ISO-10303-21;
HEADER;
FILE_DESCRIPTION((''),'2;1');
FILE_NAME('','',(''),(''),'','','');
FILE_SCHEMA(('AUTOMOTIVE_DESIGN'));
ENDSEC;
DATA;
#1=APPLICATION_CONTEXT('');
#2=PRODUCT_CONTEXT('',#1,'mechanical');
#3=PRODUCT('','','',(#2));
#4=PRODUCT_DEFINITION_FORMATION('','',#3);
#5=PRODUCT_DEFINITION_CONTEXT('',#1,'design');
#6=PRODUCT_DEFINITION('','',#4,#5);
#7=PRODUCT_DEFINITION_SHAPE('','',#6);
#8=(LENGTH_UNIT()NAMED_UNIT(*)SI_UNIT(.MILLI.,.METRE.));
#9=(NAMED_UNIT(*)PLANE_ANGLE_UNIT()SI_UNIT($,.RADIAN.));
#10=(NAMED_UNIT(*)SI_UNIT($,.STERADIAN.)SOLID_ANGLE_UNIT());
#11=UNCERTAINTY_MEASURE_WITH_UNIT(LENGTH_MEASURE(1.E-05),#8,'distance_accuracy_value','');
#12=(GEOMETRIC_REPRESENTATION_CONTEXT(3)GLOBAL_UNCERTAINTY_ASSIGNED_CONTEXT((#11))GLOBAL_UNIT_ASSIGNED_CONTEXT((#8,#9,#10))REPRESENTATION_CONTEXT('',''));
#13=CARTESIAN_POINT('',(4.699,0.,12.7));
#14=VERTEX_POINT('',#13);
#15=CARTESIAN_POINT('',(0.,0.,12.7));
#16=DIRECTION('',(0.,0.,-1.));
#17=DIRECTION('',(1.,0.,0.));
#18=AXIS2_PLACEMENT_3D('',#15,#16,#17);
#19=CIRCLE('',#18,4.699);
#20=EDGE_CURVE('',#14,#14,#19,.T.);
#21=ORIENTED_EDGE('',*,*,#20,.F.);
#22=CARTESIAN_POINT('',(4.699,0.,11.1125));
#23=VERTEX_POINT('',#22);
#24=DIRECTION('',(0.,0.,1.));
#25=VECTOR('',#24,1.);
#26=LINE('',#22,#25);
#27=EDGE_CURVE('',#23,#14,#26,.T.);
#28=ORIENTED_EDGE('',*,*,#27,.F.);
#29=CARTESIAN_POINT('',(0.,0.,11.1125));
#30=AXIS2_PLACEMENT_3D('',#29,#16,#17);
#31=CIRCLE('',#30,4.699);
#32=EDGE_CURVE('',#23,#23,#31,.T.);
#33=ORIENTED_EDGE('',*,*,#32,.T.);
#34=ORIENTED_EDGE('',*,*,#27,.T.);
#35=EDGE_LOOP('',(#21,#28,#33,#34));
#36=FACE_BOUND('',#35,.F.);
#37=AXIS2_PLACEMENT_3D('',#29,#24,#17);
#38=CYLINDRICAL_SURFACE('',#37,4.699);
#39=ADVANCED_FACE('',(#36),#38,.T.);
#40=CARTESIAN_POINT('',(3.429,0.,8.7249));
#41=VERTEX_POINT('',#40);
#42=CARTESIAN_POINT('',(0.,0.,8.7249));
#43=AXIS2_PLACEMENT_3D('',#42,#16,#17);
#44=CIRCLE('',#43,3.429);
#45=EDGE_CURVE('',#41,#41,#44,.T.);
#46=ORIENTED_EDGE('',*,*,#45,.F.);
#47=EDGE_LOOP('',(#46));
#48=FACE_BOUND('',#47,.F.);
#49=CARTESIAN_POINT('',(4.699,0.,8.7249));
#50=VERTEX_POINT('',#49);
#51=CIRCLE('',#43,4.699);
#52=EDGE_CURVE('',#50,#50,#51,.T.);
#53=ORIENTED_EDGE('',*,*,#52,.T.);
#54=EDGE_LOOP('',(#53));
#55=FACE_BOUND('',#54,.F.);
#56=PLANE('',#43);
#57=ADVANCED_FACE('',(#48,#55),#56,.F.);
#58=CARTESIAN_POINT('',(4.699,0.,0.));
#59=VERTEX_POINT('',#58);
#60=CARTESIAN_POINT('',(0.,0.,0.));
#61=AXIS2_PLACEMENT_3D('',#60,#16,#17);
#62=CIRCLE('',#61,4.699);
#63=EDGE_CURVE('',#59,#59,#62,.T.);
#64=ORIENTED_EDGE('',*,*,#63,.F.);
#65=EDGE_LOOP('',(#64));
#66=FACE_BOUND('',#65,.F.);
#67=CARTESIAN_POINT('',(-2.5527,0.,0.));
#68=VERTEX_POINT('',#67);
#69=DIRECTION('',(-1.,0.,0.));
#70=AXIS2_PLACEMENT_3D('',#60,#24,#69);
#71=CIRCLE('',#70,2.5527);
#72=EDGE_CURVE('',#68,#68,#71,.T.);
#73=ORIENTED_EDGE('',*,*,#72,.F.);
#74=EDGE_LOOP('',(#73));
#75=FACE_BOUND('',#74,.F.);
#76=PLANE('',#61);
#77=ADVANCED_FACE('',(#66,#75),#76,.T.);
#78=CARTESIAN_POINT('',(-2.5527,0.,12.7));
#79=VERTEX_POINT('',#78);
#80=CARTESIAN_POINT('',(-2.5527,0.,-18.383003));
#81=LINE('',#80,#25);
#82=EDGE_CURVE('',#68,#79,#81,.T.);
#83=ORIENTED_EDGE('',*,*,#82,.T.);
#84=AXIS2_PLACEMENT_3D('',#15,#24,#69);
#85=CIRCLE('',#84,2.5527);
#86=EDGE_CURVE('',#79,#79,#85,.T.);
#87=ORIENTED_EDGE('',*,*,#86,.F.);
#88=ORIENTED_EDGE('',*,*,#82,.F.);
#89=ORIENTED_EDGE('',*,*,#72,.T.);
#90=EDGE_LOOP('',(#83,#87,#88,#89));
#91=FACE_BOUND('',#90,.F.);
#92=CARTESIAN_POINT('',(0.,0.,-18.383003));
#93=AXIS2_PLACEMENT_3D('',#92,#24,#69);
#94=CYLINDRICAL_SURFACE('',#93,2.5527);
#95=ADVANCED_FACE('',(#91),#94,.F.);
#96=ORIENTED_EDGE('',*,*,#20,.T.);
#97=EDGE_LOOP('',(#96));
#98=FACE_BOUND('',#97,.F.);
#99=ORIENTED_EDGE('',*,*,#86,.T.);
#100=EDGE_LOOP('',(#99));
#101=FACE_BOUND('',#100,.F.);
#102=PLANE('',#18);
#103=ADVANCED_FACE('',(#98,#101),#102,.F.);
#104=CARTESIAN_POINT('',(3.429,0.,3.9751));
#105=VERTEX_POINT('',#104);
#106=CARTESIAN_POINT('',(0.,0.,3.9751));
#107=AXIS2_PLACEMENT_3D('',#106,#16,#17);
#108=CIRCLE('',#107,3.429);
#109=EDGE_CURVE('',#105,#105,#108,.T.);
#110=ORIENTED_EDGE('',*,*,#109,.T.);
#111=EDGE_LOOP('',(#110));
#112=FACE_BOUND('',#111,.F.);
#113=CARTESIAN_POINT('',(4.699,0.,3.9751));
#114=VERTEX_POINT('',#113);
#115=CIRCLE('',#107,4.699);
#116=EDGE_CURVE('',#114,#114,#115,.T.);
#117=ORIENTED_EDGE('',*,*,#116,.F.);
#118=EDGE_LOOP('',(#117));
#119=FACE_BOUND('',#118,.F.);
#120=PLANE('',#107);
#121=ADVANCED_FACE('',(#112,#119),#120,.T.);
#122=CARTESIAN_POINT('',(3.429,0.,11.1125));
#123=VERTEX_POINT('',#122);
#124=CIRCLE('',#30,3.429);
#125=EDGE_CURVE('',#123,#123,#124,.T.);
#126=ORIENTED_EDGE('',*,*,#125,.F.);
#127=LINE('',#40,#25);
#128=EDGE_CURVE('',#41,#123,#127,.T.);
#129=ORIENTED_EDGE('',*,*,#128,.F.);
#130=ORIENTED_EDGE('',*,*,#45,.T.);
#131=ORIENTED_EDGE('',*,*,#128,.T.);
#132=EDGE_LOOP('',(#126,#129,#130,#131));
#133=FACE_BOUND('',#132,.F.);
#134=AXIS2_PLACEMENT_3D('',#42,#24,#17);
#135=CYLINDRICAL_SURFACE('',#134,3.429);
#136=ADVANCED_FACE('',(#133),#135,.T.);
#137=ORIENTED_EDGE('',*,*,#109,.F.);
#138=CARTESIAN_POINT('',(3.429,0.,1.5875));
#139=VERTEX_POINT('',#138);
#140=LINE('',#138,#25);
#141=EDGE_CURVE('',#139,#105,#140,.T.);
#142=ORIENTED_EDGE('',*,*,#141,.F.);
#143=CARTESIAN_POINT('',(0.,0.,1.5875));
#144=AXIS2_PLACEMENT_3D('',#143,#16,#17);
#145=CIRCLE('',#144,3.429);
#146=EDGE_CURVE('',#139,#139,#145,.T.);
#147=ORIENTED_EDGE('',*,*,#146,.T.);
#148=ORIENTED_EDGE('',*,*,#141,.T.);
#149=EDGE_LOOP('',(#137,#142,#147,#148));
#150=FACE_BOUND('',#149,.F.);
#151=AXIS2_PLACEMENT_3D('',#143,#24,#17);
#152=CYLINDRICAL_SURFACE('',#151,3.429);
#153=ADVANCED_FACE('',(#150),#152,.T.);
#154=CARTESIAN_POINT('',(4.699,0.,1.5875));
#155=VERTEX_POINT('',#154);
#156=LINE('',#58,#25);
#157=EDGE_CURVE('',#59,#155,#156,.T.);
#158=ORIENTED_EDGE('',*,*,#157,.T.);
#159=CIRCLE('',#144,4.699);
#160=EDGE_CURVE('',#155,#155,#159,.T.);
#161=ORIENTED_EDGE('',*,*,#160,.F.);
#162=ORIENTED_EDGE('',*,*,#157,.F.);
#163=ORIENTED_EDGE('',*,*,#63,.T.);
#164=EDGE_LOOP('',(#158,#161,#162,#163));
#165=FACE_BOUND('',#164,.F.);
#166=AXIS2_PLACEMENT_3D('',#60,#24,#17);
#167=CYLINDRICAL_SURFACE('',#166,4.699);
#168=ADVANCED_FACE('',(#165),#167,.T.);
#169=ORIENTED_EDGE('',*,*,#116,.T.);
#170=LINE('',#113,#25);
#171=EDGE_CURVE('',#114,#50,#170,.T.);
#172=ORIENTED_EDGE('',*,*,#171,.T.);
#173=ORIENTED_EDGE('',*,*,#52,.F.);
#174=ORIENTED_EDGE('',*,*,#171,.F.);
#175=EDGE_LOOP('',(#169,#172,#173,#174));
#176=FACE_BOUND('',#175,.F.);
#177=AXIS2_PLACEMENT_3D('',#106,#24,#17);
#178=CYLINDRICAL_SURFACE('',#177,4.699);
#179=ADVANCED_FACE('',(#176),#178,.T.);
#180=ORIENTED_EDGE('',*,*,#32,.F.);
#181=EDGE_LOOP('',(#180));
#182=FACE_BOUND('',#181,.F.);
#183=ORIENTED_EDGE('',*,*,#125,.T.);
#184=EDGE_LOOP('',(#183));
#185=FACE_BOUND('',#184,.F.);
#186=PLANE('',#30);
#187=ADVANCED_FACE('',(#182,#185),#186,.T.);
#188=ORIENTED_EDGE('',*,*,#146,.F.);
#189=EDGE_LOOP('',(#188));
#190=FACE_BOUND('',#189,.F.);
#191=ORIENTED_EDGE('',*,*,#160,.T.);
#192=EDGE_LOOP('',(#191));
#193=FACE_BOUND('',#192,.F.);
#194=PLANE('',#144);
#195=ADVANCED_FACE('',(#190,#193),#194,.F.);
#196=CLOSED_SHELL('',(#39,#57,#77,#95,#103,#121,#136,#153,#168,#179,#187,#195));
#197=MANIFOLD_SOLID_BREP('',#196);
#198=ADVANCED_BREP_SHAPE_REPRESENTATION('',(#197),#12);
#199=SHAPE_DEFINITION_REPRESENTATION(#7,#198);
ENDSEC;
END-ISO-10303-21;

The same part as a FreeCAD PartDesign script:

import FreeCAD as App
import Part
import Sketcher
Q = App.Units.Quantity

doc = App.newDocument("Part")
body = doc.addObject("PartDesign::Body", "Body")

# Sketch on XZ plane
sketch1 = doc.addObject("Sketcher::SketchObject", "Sketch")
body.addObject(sketch1)
sketch1.AttachmentSupport = (doc.XZ_Plane, [""])
sketch1.MapMode = "FlatFace"
sketch1.addGeometry(Part.LineSegment(App.Vector(0, 12.7, 0), App.Vector(0, 0, 0)), False)
sketch1.addGeometry(Part.LineSegment(App.Vector(0, 0, 0), App.Vector(4.7, 0, 0)), False)
sketch1.addGeometry(Part.LineSegment(App.Vector(4.7, 0, 0), App.Vector(4.7, 1.6, 0)), False)
sketch1.addGeometry(Part.LineSegment(App.Vector(4.7, 1.6, 0), App.Vector(3.4, 1.6, 0)), False)
sketch1.addGeometry(Part.LineSegment(App.Vector(3.4, 1.6, 0), App.Vector(3.4, 4, 0)), False)
sketch1.addGeometry(Part.LineSegment(App.Vector(3.4, 4, 0), App.Vector(4.7, 4, 0)), False)
sketch1.addGeometry(Part.LineSegment(App.Vector(4.7, 4, 0), App.Vector(4.7, 8.7, 0)), False)
sketch1.addGeometry(Part.LineSegment(App.Vector(4.7, 8.7, 0), App.Vector(3.4, 8.7, 0)), False)
sketch1.addGeometry(Part.LineSegment(App.Vector(3.4, 8.7, 0), App.Vector(3.4, 11.1, 0)), False)
sketch1.addGeometry(Part.LineSegment(App.Vector(3.4, 11.1, 0), App.Vector(4.7, 11.1, 0)), False)
sketch1.addGeometry(Part.LineSegment(App.Vector(4.7, 11.1, 0), App.Vector(4.7, 12.7, 0)), False)
sketch1.addGeometry(Part.LineSegment(App.Vector(4.7, 12.7, 0), App.Vector(0, 12.7, 0)), False)
sketch1.addConstraint(Sketcher.Constraint("Coincident", 0, 2, 1, 1))
sketch1.addConstraint(Sketcher.Constraint("Coincident", 1, 2, 2, 1))
sketch1.addConstraint(Sketcher.Constraint("Coincident", 2, 2, 3, 1))
sketch1.addConstraint(Sketcher.Constraint("Coincident", 3, 2, 4, 1))
sketch1.addConstraint(Sketcher.Constraint("Coincident", 4, 2, 5, 1))
sketch1.addConstraint(Sketcher.Constraint("Coincident", 5, 2, 6, 1))
sketch1.addConstraint(Sketcher.Constraint("Coincident", 6, 2, 7, 1))
sketch1.addConstraint(Sketcher.Constraint("Coincident", 7, 2, 8, 1))
sketch1.addConstraint(Sketcher.Constraint("Coincident", 8, 2, 9, 1))
sketch1.addConstraint(Sketcher.Constraint("Coincident", 9, 2, 10, 1))
sketch1.addConstraint(Sketcher.Constraint("Coincident", 10, 2, 11, 1))
sketch1.addConstraint(Sketcher.Constraint("Coincident", 11, 2, 0, 1))
sketch1.addConstraint(Sketcher.Constraint("Vertical", 0))
sketch1.addConstraint(Sketcher.Constraint("Horizontal", 1))
sketch1.addConstraint(Sketcher.Constraint("Vertical", 2))
sketch1.addConstraint(Sketcher.Constraint("Horizontal", 3))
sketch1.addConstraint(Sketcher.Constraint("Vertical", 4))
sketch1.addConstraint(Sketcher.Constraint("Horizontal", 5))
sketch1.addConstraint(Sketcher.Constraint("Vertical", 6))
sketch1.addConstraint(Sketcher.Constraint("Horizontal", 7))
sketch1.addConstraint(Sketcher.Constraint("Vertical", 8))
sketch1.addConstraint(Sketcher.Constraint("Horizontal", 9))
sketch1.addConstraint(Sketcher.Constraint("Vertical", 10))
sketch1.addConstraint(Sketcher.Constraint("Horizontal", 11))
sketch1.addConstraint(Sketcher.Constraint("Coincident", 0, 2, -1, 1))
sketch1.addConstraint(Sketcher.Constraint("Vertical", 2, 2, 5, 2))
sketch1.addConstraint(Sketcher.Constraint("Vertical", 4, 2, 7, 2))
sketch1.addConstraint(Sketcher.Constraint("Vertical", 6, 2, 9, 2))
sketch1.addConstraint(Sketcher.Constraint("Equal", 4, 8))
sketch1.addConstraint(Sketcher.Constraint("Equal", 2, 10))
sketch1.addConstraint(Sketcher.Constraint("DistanceY", 0, 2, 0, 1, Q("0.5 in")))
sketch1.addConstraint(Sketcher.Constraint("DistanceX", 3, 2, 3, 1, Q("0.05 in")))
sketch1.addConstraint(Sketcher.Constraint("DistanceX", 1, 1, 1, 2, Q("0.185 in")))
sketch1.addConstraint(Sketcher.Constraint("DistanceY", 2, 1, 2, 2, Q("0.0625 in")))
sketch1.addConstraint(Sketcher.Constraint("DistanceY", 4, 1, 4, 2, Q("0.094 in")))
revolution = doc.addObject("PartDesign::Revolution", "Revolution")
body.addObject(revolution)
revolution.Profile = sketch1
revolution.ReferenceAxis = (sketch1, ["V_Axis"])
revolution.Angle = 360

# Sketch on XY plane
sketch2 = doc.addObject("Sketcher::SketchObject", "Sketch001")
body.addObject(sketch2)
sketch2.AttachmentSupport = (doc.XY_Plane, [""])
sketch2.MapMode = "FlatFace"
sketch2.addGeometry(Part.Circle(App.Vector(0, 0, 0), App.Vector(0, 0, 1), 2.6), False)
sketch2.addConstraint(Sketcher.Constraint("Coincident", 0, 3, -1, 1))
sketch2.addConstraint(Sketcher.Constraint("Diameter", 0, Q("0.201 in")))
doc.recompute()
hole = doc.addObject("PartDesign::Hole", "Hole")
body.addObject(hole)
hole.Profile = sketch2
hole.ThreadType = "None"
hole.Diameter = Q("0.201 in")
hole.DepthType = "ThroughAll"
hole.Reversed = True

doc.recompute()
